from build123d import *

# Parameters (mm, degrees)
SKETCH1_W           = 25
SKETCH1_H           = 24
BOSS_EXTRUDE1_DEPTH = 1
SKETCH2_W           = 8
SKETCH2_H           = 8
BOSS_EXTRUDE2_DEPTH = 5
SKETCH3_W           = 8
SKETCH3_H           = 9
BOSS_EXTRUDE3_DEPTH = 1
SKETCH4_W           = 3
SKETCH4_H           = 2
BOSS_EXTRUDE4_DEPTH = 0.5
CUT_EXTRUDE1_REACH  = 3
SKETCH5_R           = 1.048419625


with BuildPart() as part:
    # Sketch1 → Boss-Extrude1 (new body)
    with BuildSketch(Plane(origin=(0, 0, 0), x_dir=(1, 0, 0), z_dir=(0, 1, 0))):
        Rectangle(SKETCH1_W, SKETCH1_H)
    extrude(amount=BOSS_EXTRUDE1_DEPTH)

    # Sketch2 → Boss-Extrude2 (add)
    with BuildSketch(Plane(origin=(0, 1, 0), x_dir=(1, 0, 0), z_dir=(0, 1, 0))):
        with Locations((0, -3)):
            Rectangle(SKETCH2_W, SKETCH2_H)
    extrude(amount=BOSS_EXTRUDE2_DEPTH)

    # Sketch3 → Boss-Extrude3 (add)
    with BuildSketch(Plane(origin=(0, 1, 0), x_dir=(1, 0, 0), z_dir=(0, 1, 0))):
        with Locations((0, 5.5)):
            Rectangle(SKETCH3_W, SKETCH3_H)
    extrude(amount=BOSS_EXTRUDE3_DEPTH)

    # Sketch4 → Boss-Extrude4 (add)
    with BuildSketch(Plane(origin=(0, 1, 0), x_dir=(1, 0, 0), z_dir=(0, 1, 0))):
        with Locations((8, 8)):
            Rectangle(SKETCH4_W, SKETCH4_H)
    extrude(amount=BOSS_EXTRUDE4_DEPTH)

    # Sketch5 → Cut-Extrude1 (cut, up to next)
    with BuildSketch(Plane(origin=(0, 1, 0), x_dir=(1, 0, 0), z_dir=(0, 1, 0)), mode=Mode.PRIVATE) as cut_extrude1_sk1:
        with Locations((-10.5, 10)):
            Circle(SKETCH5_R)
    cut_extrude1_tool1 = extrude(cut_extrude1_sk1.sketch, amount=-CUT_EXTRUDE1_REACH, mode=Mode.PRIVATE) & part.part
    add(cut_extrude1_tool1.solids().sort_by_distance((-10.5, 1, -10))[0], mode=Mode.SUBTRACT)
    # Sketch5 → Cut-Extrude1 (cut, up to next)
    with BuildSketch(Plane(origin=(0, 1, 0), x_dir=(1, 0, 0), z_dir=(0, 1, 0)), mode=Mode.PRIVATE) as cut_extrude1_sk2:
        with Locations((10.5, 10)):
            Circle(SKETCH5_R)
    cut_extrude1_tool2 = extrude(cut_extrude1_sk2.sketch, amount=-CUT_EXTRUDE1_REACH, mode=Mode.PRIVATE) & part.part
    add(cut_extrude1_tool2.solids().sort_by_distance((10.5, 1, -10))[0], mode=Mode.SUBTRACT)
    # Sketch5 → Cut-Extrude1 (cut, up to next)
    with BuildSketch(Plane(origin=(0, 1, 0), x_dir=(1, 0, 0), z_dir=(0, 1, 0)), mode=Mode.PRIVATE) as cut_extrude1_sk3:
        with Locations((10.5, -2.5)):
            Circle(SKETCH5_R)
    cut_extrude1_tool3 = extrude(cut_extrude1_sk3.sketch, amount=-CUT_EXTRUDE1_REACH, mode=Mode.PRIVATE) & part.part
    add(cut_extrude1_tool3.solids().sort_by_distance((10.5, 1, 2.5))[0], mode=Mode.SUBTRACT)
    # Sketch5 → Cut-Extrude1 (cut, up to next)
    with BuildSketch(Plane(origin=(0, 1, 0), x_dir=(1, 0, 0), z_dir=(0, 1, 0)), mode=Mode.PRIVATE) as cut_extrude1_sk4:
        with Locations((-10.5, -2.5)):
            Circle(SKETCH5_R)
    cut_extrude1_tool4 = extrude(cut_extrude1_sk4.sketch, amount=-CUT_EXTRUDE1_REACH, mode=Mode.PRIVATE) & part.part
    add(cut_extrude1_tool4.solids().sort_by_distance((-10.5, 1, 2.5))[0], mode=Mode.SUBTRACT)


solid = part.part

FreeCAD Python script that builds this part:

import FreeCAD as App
import Part
import Sketcher


def add_polygon(sketch, points):
    """Adds a closed chain of lines whose ends are joined by coincident constraints."""
    first, n = sketch.GeometryCount, len(points)
    for a, b in zip(points, points[1:] + points[:1]):
        sketch.addGeometry(Part.LineSegment(App.Vector(*a, 0), App.Vector(*b, 0)), False)
    for i in range(n):
        sketch.addConstraint(Sketcher.Constraint("Coincident", first + i, 2, first + (i + 1) % n, 1))

doc = App.newDocument("Part")
body = doc.addObject("PartDesign::Body", "Body")

# Sketch on XZ plane
sketch1 = body.newObject("Sketcher::SketchObject", "Sketch")
sketch1.AttachmentSupport = (doc.getObject("XZ_Plane"), [""])
sketch1.MapMode = "FlatFace"
add_polygon(sketch1, [(-12, -12), (-12, 12), (12, 12), (12, -12)])  # lines 0-3
sketch1.addConstraint([
    Sketcher.Constraint("Vertical", 0),
    Sketcher.Constraint("Horizontal", 1),
    Sketcher.Constraint("Vertical", 2),
    Sketcher.Constraint("Horizontal", 3),
    Sketcher.Constraint("Symmetric", 0, 2, 2, 2, -1, 1),
    Sketcher.Constraint("DistanceX", 1, 1, 1, 2, 25.0),
    Sketcher.Constraint("DistanceY", 0, 1, 0, 2, 24.0),
])
pad1 = body.newObject("PartDesign::Pad", "Pad")
pad1.Profile = sketch1
pad1.Length = 1
pad1.Reversed = True

# Sketch on XZ plane
sketch2 = body.newObject("Sketcher::SketchObject", "Sketch001")
sketch2.AttachmentSupport = (doc.getObject("XZ_Plane"), [""])
sketch2.MapMode = "FlatFace"
sketch2.AttachmentOffset = App.Placement(App.Vector(0, 0, -1), App.Rotation())
add_polygon(sketch2, [(-4, -1), (-4, 7), (4, 7), (4, -1)])  # lines 0-3
sketch2.addConstraint([
    Sketcher.Constraint("Vertical", 0),
    Sketcher.Constraint("Horizontal", 1),
    Sketcher.Constraint("Vertical", 2),
    Sketcher.Constraint("Horizontal", 3),
    Sketcher.Constraint("Equal", 3, 0),
    Sketcher.Constraint("DistanceX", 1, 1, 1, 2, 8.0),
    Sketcher.Constraint("DistanceX", 0, 2, -1, 1, 4.0),
    Sketcher.Constraint("DistanceY", -1, 1, 0, 2, 7.0),
])
pad2 = body.newObject("PartDesign::Pad", "Pad001")
pad2.Profile = sketch2
pad2.Length = 5
pad2.Reversed = True

# Sketch on XZ plane
sketch3 = body.newObject("Sketcher::SketchObject", "Sketch002")
sketch3.AttachmentSupport = (doc.getObject("XZ_Plane"), [""])
sketch3.MapMode = "FlatFace"
sketch3.AttachmentOffset = App.Placement(App.Vector(0, 0, -1), App.Rotation())
add_polygon(sketch3, [(-4, -10), (-4, -1), (4, -1), (4, -10)])  # lines 0-3
sketch3.addConstraint([
    Sketcher.Constraint("Vertical", 0),
    Sketcher.Constraint("Horizontal", 1),
    Sketcher.Constraint("Vertical", 2),
    Sketcher.Constraint("Horizontal", 3),
    Sketcher.Constraint("DistanceX", 1, 1, 1, 2, 8.0),
    Sketcher.Constraint("DistanceY", 0, 1, 0, 2, 9.0),
    Sketcher.Constraint("DistanceX", 0, 2, -1, 1, 4.0),
    Sketcher.Constraint("DistanceY", 0, 2, -1, 1, 1.0),
])
pad3 = body.newObject("PartDesign::Pad", "Pad002")
pad3.Profile = sketch3
pad3.Length = 1
pad3.Reversed = True

# Sketch on XZ plane
sketch4 = body.newObject("Sketcher::SketchObject", "Sketch003")
sketch4.AttachmentSupport = (doc.getObject("XZ_Plane"), [""])
sketch4.MapMode = "FlatFace"
sketch4.AttachmentOffset = App.Placement(App.Vector(0, 0, -1), App.Rotation())
add_polygon(sketch4, [(6.5, -9), (6.5, -7), (9.5, -7), (9.5, -9)])  # lines 0-3
sketch4.addConstraint([
    Sketcher.Constraint("Vertical", 0),
    Sketcher.Constraint("Horizontal", 1),
    Sketcher.Constraint("Vertical", 2),
    Sketcher.Constraint("Horizontal", 3),
    Sketcher.Constraint("DistanceX", 1, 1, 1, 2, 3.0),
    Sketcher.Constraint("DistanceY", 0, 1, 0, 2, 2.0),
    Sketcher.Constraint("DistanceY", 0, 2, -1, 1, 7.0),
    Sketcher.Constraint("DistanceX", -1, 1, 0, 2, 6.5),
])
pad4 = body.newObject("PartDesign::Pad", "Pad003")
pad4.Profile = sketch4
pad4.Length = 0.5
pad4.Reversed = True

# Sketch on XZ plane
sketch5 = body.newObject("Sketcher::SketchObject", "Sketch004")
sketch5.AttachmentSupport = (doc.getObject("XZ_Plane"), [""])
sketch5.MapMode = "FlatFace"
sketch5.AttachmentOffset = App.Placement(App.Vector(0, 0, -1), App.Rotation())
sketch5.addGeometry(Part.Circle(App.Vector(-10.5, -10, 0), App.Vector(0, 0, 1), 1), False)
sketch5.addConstraint([
    Sketcher.Constraint("DistanceY", 0, 3, -1, 1, 10.0),
    Sketcher.Constraint("DistanceX", 0, 3, -1, 1, 10.5),
    Sketcher.Constraint("Diameter", 0, 2.096839),
])
pocket1 = body.newObject("PartDesign::Pocket", "Pocket")
pocket1.Profile = sketch5
pocket1.Type = "UpToFirst"
pocket1.Reversed = True

# Sketch on XZ plane
sketch6 = body.newObject("Sketcher::SketchObject", "Sketch005")
sketch6.AttachmentSupport = (doc.getObject("XZ_Plane"), [""])
sketch6.MapMode = "FlatFace"
sketch6.AttachmentOffset = App.Placement(App.Vector(0, 0, -1), App.Rotation())
sketch6.addGeometry(Part.Circle(App.Vector(10.5, -10, 0), App.Vector(0, 0, 1), 1), False)
sketch6.addConstraint([
    Sketcher.Constraint("DistanceY", 0, 3, -1, 1, 10.0),
    Sketcher.Constraint("DistanceX", -1, 1, 0, 3, 10.5),
    Sketcher.Constraint("Diameter", 0, 2.096839),
])
pocket2 = body.newObject("PartDesign::Pocket", "Pocket001")
pocket2.Profile = sketch6
pocket2.Type = "UpToFirst"
pocket2.Reversed = True

# Sketch on XZ plane
sketch7 = body.newObject("Sketcher::SketchObject", "Sketch006")
sketch7.AttachmentSupport = (doc.getObject("XZ_Plane"), [""])
sketch7.MapMode = "FlatFace"
sketch7.AttachmentOffset = App.Placement(App.Vector(0, 0, -1), App.Rotation())
sketch7.addGeometry(Part.Circle(App.Vector(10.5, 2.5, 0), App.Vector(0, 0, 1), 1), False)
sketch7.addConstraint([
    Sketcher.Constraint("DistanceX", -1, 1, 0, 3, 10.5),
    Sketcher.Constraint("DistanceY", -1, 1, 0, 3, 2.5),
    Sketcher.Constraint("Diameter", 0, 2.096839),
])
pocket3 = body.newObject("PartDesign::Pocket", "Pocket002")
pocket3.Profile = sketch7
pocket3.Type = "UpToFirst"
pocket3.Reversed = True

# Sketch on XZ plane
sketch8 = body.newObject("Sketcher::SketchObject", "Sketch007")
sketch8.AttachmentSupport = (doc.getObject("XZ_Plane"), [""])
sketch8.MapMode = "FlatFace"
sketch8.AttachmentOffset = App.Placement(App.Vector(0, 0, -1), App.Rotation())
sketch8.addGeometry(Part.Circle(App.Vector(-10.5, 2.5, 0), App.Vector(0, 0, 1), 1), False)
sketch8.addConstraint([
    Sketcher.Constraint("DistanceX", 0, 3, -1, 1, 10.5),
    Sketcher.Constraint("DistanceY", -1, 1, 0, 3, 2.5),
    Sketcher.Constraint("Diameter", 0, 2.096839),
])
pocket4 = body.newObject("PartDesign::Pocket", "Pocket003")
pocket4.Profile = sketch8
pocket4.Type = "UpToFirst"
pocket4.Reversed = True

doc.recompute()
